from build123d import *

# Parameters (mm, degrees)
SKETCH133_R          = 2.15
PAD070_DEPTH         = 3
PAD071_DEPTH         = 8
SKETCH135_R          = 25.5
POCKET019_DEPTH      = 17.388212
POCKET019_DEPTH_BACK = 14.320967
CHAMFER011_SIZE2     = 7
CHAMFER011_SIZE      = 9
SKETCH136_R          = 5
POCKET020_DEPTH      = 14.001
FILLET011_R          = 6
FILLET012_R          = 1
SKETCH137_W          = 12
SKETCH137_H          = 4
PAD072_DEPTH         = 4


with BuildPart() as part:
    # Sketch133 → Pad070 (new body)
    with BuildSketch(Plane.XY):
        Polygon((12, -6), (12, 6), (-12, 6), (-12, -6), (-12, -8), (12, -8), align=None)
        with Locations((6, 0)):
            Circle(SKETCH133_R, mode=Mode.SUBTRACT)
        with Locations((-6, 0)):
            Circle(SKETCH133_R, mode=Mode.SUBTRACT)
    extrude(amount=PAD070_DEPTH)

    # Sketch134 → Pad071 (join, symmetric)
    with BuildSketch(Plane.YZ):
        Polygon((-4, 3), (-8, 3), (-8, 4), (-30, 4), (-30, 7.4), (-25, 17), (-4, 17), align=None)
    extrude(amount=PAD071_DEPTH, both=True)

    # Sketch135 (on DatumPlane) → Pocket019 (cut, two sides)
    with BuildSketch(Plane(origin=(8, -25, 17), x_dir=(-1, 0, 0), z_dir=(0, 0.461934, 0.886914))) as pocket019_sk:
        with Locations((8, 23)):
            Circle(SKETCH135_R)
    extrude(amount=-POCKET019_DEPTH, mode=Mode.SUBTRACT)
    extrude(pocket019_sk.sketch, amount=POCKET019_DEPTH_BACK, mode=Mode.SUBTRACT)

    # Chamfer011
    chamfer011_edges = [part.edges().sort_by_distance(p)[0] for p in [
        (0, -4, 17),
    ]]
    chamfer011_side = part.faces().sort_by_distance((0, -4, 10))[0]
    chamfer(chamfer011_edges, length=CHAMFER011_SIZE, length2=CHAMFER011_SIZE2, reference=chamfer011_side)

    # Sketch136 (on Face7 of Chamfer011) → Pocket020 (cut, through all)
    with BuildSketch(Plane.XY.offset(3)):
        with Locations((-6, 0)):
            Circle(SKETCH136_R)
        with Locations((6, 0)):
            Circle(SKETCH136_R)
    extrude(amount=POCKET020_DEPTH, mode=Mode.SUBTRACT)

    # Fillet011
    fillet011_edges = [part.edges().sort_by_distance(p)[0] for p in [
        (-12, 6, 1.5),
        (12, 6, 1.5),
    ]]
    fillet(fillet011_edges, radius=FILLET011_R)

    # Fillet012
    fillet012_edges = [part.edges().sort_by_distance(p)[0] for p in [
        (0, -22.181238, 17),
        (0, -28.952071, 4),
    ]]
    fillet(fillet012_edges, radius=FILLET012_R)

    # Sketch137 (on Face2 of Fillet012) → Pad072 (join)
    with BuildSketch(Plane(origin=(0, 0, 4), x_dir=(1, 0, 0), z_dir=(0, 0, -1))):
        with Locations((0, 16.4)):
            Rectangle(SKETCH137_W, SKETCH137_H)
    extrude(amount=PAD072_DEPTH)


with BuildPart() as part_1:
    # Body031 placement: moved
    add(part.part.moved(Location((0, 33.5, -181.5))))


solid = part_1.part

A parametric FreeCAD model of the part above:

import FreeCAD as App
import Part
import Sketcher


def edges_at(feature, points):
    """Names of the edges that pass closest to the given points."""
    edges = feature.Shape.Edges
    near = lambda p: min(range(len(edges)), key=lambda i: edges[i].distToShape(Part.Vertex(*p))[0])
    return sorted({f"Edge{near(p) + 1}" for p in points})


def add_polygon(sketch, points):
    """Adds a closed chain of lines whose ends are joined by coincident constraints."""
    first, n = sketch.GeometryCount, len(points)
    for a, b in zip(points, points[1:] + points[:1]):
        sketch.addGeometry(Part.LineSegment(App.Vector(*a, 0), App.Vector(*b, 0)), False)
    for i in range(n):
        sketch.addConstraint(Sketcher.Constraint("Coincident", first + i, 2, first + (i + 1) % n, 1))

doc = App.newDocument("Part")
body = doc.addObject("PartDesign::Body", "Body")

# Sketch on XY plane
sketch1 = body.newObject("Sketcher::SketchObject", "Sketch")
sketch1.AttachmentSupport = (doc.getObject("XY_Plane"), [""])
sketch1.MapMode = "FlatFace"
add_polygon(sketch1, [(12, 6), (-12, 6), (-12, -8), (12, -8)])  # lines 0-3
sketch1.addGeometry(Part.Circle(App.Vector(-6, 0, 0), App.Vector(0, 0, 1), 2.1), False)  # 4
sketch1.addGeometry(Part.Circle(App.Vector(6, 0, 0), App.Vector(0, 0, 1), 2.1), False)  # 5
sketch1.addConstraint([
    Sketcher.Constraint("Horizontal", 0),
    Sketcher.Constraint("Vertical", 1),
    Sketcher.Constraint("Horizontal", 2),
    Sketcher.Constraint("Vertical", 3),
    Sketcher.Constraint("Equal", 4, 5),
    Sketcher.Constraint("Symmetric", 4, 3, 5, 3, -1, 1),
    Sketcher.Constraint("PointOnObject", 4, 3, -1),
    Sketcher.Constraint("Diameter", 4, 4.3),
    Sketcher.Constraint("DistanceX", 0, 2, 0, 1, 24.0),
    Sketcher.Constraint("DistanceY", 1, 2, 1, 1, 14.0),
    Sketcher.Constraint("DistanceX", 4, 3, -1, 1, 6.0),
    Sketcher.Constraint("DistanceX", 0, 2, -1, 1, 12.0),
    Sketcher.Constraint("DistanceY", -1, 1, 0, 2, 6.0),
])
pad1 = body.newObject("PartDesign::Pad", "Pad")
pad1.Profile = sketch1
pad1.Length = 3

# Sketch on YZ plane
sketch2 = body.newObject("Sketcher::SketchObject", "Sketch001")
sketch2.AttachmentSupport = (doc.getObject("YZ_Plane"), [""])
sketch2.MapMode = "FlatFace"
add_polygon(sketch2, [(-8, 3), (-4, 3), (-4, 17), (-25, 17), (-30, 7.4), (-30, 4), (-8, 4)])  # lines 0-6
sketch2.addConstraint([
    Sketcher.Constraint("Horizontal", 0),
    Sketcher.Constraint("Vertical", 1),
    Sketcher.Constraint("Horizontal", 2),
    Sketcher.Constraint("Vertical", 4),
    Sketcher.Constraint("Horizontal", 5),
    Sketcher.Constraint("Vertical", 6),
    Sketcher.Constraint("DistanceX", 0, 1, 0, 2, 4.0),
    Sketcher.Constraint("DistanceX", 2, 2, 2, 1, 21.0),
    Sketcher.Constraint("DistanceX", 5, 1, 5, 2, 22.0),
    Sketcher.Constraint("DistanceY", 1, 1, 1, 2, 14.0),
    Sketcher.Constraint("DistanceY", 6, 2, 6, 1, 1.0),
    Sketcher.Constraint("DistanceY", 4, 2, 4, 1, 3.4),
    Sketcher.Constraint("DistanceX", 0, 2, -1, 1, 4.0),
    Sketcher.Constraint("DistanceY", -1, 1, 0, 2, 3.0),
])
pad2 = body.newObject("PartDesign::Pad", "Pad001")
pad2.Profile = sketch2
pad2.Length = 16
pad2.Midplane = True

# Sketch on an angled plane
sketch3 = body.newObject("Sketcher::SketchObject", "Sketch002")
sketch3.Placement = App.Placement(App.Vector(8, -25, 17), App.Rotation(App.Vector(-1, 0, 0), App.Vector(0, -0.886914238, 0.461934124), App.Vector(0, 0.461934124, 0.886914238), "ZXY"))
sketch3.addGeometry(Part.Circle(App.Vector(8, 23, 0), App.Vector(0, 0, 1), 26), False)
sketch3.addConstraint([
    Sketcher.Constraint("Diameter", 0, 51.0),
    Sketcher.Constraint("DistanceX", -1, 1, 0, 3, 8.0),
    Sketcher.Constraint("DistanceY", -1, 1, 0, 3, 23.0),
])
pocket1 = body.newObject("PartDesign::Pocket", "Pocket")
pocket1.Profile = sketch3
pocket1.Type = "ThroughAll"
pocket1.Midplane = True
doc.recompute()

chamfer = body.newObject("PartDesign::Chamfer", "Chamfer")
chamfer.Base = (pocket1, edges_at(pocket1, [(0, -4, 17)]))
chamfer.ChamferType = "Two distances"
chamfer.Size = 9
chamfer.Size2 = 7

# Sketch on XY plane
sketch4 = body.newObject("Sketcher::SketchObject", "Sketch003")
sketch4.AttachmentSupport = (doc.getObject("XY_Plane"), [""])
sketch4.MapMode = "FlatFace"
sketch4.AttachmentOffset = App.Placement(App.Vector(0, 0, 3), App.Rotation())
sketch4.addGeometry([
    Part.Circle(App.Vector(-6, 0, 0), App.Vector(0, 0, 1), 5),
    Part.Circle(App.Vector(6, 0, 0), App.Vector(0, 0, 1), 5),
], False)
sketch4.addConstraint([
    Sketcher.Constraint("Equal", 0, 1),
    Sketcher.Constraint("Symmetric", 0, 3, 1, 3, -1, 1),
    Sketcher.Constraint("PointOnObject", 0, 3, -1),
    Sketcher.Constraint("Diameter", 0, 10.0),
    Sketcher.Constraint("DistanceX", 0, 3, -1, 1, 6.0),
])
pocket2 = body.newObject("PartDesign::Pocket", "Pocket001")
pocket2.Profile = sketch4
pocket2.Type = "ThroughAll"
pocket2.Reversed = True
doc.recompute()

fillet = body.newObject("PartDesign::Fillet", "Fillet")
fillet.Base = (pocket2, edges_at(pocket2, [(-12, 6, 1.5), (12, 6, 1.5)]))
fillet.Radius = 6
doc.recompute()

fillet2 = body.newObject("PartDesign::Fillet", "Fillet001")
fillet2.Base = (fillet, edges_at(fillet, [(0, -22.181, 17), (0, -28.952, 4)]))
fillet2.Radius = 1

# Sketch on XY plane
sketch5 = body.newObject("Sketcher::SketchObject", "Sketch004")
sketch5.AttachmentSupport = (doc.getObject("XY_Plane"), [""])
sketch5.MapMode = "FlatFace"
sketch5.AttachmentOffset = App.Placement(App.Vector(0, 0, 4), App.Rotation())
add_polygon(sketch5, [(-6, -18.4), (-6, -14.4), (6, -14.4), (6, -18.4)])  # lines 0-3
sketch5.addConstraint([
    Sketcher.Constraint("Vertical", 0),
    Sketcher.Constraint("Horizontal", 1),
    Sketcher.Constraint("Vertical", 2),
    Sketcher.Constraint("Horizontal", 3),
    Sketcher.Constraint("DistanceX", 1, 1, 1, 2, 12.0),
    Sketcher.Constraint("DistanceY", 0, 1, 0, 2, 4.0),
    Sketcher.Constraint("DistanceX", 0, 2, -1, 1, 6.0),
    Sketcher.Constraint("DistanceY", 0, 2, -1, 1, 14.4),
])
pad3 = body.newObject("PartDesign::Pad", "Pad002")
pad3.Profile = sketch5
pad3.Length = 4
pad3.Reversed = True
body2 = doc.addObject("PartDesign::Body", "Body001")
doc.recompute()

body.Placement = App.Placement(App.Vector(0, 33.5, -181.5), App.Rotation(App.Vector(0, 0, 1), 0))
boolean = body2.newObject("PartDesign::Boolean", "Boolean")
boolean.Type = "Fuse"
boolean.addObjects([body])

doc.recompute()
